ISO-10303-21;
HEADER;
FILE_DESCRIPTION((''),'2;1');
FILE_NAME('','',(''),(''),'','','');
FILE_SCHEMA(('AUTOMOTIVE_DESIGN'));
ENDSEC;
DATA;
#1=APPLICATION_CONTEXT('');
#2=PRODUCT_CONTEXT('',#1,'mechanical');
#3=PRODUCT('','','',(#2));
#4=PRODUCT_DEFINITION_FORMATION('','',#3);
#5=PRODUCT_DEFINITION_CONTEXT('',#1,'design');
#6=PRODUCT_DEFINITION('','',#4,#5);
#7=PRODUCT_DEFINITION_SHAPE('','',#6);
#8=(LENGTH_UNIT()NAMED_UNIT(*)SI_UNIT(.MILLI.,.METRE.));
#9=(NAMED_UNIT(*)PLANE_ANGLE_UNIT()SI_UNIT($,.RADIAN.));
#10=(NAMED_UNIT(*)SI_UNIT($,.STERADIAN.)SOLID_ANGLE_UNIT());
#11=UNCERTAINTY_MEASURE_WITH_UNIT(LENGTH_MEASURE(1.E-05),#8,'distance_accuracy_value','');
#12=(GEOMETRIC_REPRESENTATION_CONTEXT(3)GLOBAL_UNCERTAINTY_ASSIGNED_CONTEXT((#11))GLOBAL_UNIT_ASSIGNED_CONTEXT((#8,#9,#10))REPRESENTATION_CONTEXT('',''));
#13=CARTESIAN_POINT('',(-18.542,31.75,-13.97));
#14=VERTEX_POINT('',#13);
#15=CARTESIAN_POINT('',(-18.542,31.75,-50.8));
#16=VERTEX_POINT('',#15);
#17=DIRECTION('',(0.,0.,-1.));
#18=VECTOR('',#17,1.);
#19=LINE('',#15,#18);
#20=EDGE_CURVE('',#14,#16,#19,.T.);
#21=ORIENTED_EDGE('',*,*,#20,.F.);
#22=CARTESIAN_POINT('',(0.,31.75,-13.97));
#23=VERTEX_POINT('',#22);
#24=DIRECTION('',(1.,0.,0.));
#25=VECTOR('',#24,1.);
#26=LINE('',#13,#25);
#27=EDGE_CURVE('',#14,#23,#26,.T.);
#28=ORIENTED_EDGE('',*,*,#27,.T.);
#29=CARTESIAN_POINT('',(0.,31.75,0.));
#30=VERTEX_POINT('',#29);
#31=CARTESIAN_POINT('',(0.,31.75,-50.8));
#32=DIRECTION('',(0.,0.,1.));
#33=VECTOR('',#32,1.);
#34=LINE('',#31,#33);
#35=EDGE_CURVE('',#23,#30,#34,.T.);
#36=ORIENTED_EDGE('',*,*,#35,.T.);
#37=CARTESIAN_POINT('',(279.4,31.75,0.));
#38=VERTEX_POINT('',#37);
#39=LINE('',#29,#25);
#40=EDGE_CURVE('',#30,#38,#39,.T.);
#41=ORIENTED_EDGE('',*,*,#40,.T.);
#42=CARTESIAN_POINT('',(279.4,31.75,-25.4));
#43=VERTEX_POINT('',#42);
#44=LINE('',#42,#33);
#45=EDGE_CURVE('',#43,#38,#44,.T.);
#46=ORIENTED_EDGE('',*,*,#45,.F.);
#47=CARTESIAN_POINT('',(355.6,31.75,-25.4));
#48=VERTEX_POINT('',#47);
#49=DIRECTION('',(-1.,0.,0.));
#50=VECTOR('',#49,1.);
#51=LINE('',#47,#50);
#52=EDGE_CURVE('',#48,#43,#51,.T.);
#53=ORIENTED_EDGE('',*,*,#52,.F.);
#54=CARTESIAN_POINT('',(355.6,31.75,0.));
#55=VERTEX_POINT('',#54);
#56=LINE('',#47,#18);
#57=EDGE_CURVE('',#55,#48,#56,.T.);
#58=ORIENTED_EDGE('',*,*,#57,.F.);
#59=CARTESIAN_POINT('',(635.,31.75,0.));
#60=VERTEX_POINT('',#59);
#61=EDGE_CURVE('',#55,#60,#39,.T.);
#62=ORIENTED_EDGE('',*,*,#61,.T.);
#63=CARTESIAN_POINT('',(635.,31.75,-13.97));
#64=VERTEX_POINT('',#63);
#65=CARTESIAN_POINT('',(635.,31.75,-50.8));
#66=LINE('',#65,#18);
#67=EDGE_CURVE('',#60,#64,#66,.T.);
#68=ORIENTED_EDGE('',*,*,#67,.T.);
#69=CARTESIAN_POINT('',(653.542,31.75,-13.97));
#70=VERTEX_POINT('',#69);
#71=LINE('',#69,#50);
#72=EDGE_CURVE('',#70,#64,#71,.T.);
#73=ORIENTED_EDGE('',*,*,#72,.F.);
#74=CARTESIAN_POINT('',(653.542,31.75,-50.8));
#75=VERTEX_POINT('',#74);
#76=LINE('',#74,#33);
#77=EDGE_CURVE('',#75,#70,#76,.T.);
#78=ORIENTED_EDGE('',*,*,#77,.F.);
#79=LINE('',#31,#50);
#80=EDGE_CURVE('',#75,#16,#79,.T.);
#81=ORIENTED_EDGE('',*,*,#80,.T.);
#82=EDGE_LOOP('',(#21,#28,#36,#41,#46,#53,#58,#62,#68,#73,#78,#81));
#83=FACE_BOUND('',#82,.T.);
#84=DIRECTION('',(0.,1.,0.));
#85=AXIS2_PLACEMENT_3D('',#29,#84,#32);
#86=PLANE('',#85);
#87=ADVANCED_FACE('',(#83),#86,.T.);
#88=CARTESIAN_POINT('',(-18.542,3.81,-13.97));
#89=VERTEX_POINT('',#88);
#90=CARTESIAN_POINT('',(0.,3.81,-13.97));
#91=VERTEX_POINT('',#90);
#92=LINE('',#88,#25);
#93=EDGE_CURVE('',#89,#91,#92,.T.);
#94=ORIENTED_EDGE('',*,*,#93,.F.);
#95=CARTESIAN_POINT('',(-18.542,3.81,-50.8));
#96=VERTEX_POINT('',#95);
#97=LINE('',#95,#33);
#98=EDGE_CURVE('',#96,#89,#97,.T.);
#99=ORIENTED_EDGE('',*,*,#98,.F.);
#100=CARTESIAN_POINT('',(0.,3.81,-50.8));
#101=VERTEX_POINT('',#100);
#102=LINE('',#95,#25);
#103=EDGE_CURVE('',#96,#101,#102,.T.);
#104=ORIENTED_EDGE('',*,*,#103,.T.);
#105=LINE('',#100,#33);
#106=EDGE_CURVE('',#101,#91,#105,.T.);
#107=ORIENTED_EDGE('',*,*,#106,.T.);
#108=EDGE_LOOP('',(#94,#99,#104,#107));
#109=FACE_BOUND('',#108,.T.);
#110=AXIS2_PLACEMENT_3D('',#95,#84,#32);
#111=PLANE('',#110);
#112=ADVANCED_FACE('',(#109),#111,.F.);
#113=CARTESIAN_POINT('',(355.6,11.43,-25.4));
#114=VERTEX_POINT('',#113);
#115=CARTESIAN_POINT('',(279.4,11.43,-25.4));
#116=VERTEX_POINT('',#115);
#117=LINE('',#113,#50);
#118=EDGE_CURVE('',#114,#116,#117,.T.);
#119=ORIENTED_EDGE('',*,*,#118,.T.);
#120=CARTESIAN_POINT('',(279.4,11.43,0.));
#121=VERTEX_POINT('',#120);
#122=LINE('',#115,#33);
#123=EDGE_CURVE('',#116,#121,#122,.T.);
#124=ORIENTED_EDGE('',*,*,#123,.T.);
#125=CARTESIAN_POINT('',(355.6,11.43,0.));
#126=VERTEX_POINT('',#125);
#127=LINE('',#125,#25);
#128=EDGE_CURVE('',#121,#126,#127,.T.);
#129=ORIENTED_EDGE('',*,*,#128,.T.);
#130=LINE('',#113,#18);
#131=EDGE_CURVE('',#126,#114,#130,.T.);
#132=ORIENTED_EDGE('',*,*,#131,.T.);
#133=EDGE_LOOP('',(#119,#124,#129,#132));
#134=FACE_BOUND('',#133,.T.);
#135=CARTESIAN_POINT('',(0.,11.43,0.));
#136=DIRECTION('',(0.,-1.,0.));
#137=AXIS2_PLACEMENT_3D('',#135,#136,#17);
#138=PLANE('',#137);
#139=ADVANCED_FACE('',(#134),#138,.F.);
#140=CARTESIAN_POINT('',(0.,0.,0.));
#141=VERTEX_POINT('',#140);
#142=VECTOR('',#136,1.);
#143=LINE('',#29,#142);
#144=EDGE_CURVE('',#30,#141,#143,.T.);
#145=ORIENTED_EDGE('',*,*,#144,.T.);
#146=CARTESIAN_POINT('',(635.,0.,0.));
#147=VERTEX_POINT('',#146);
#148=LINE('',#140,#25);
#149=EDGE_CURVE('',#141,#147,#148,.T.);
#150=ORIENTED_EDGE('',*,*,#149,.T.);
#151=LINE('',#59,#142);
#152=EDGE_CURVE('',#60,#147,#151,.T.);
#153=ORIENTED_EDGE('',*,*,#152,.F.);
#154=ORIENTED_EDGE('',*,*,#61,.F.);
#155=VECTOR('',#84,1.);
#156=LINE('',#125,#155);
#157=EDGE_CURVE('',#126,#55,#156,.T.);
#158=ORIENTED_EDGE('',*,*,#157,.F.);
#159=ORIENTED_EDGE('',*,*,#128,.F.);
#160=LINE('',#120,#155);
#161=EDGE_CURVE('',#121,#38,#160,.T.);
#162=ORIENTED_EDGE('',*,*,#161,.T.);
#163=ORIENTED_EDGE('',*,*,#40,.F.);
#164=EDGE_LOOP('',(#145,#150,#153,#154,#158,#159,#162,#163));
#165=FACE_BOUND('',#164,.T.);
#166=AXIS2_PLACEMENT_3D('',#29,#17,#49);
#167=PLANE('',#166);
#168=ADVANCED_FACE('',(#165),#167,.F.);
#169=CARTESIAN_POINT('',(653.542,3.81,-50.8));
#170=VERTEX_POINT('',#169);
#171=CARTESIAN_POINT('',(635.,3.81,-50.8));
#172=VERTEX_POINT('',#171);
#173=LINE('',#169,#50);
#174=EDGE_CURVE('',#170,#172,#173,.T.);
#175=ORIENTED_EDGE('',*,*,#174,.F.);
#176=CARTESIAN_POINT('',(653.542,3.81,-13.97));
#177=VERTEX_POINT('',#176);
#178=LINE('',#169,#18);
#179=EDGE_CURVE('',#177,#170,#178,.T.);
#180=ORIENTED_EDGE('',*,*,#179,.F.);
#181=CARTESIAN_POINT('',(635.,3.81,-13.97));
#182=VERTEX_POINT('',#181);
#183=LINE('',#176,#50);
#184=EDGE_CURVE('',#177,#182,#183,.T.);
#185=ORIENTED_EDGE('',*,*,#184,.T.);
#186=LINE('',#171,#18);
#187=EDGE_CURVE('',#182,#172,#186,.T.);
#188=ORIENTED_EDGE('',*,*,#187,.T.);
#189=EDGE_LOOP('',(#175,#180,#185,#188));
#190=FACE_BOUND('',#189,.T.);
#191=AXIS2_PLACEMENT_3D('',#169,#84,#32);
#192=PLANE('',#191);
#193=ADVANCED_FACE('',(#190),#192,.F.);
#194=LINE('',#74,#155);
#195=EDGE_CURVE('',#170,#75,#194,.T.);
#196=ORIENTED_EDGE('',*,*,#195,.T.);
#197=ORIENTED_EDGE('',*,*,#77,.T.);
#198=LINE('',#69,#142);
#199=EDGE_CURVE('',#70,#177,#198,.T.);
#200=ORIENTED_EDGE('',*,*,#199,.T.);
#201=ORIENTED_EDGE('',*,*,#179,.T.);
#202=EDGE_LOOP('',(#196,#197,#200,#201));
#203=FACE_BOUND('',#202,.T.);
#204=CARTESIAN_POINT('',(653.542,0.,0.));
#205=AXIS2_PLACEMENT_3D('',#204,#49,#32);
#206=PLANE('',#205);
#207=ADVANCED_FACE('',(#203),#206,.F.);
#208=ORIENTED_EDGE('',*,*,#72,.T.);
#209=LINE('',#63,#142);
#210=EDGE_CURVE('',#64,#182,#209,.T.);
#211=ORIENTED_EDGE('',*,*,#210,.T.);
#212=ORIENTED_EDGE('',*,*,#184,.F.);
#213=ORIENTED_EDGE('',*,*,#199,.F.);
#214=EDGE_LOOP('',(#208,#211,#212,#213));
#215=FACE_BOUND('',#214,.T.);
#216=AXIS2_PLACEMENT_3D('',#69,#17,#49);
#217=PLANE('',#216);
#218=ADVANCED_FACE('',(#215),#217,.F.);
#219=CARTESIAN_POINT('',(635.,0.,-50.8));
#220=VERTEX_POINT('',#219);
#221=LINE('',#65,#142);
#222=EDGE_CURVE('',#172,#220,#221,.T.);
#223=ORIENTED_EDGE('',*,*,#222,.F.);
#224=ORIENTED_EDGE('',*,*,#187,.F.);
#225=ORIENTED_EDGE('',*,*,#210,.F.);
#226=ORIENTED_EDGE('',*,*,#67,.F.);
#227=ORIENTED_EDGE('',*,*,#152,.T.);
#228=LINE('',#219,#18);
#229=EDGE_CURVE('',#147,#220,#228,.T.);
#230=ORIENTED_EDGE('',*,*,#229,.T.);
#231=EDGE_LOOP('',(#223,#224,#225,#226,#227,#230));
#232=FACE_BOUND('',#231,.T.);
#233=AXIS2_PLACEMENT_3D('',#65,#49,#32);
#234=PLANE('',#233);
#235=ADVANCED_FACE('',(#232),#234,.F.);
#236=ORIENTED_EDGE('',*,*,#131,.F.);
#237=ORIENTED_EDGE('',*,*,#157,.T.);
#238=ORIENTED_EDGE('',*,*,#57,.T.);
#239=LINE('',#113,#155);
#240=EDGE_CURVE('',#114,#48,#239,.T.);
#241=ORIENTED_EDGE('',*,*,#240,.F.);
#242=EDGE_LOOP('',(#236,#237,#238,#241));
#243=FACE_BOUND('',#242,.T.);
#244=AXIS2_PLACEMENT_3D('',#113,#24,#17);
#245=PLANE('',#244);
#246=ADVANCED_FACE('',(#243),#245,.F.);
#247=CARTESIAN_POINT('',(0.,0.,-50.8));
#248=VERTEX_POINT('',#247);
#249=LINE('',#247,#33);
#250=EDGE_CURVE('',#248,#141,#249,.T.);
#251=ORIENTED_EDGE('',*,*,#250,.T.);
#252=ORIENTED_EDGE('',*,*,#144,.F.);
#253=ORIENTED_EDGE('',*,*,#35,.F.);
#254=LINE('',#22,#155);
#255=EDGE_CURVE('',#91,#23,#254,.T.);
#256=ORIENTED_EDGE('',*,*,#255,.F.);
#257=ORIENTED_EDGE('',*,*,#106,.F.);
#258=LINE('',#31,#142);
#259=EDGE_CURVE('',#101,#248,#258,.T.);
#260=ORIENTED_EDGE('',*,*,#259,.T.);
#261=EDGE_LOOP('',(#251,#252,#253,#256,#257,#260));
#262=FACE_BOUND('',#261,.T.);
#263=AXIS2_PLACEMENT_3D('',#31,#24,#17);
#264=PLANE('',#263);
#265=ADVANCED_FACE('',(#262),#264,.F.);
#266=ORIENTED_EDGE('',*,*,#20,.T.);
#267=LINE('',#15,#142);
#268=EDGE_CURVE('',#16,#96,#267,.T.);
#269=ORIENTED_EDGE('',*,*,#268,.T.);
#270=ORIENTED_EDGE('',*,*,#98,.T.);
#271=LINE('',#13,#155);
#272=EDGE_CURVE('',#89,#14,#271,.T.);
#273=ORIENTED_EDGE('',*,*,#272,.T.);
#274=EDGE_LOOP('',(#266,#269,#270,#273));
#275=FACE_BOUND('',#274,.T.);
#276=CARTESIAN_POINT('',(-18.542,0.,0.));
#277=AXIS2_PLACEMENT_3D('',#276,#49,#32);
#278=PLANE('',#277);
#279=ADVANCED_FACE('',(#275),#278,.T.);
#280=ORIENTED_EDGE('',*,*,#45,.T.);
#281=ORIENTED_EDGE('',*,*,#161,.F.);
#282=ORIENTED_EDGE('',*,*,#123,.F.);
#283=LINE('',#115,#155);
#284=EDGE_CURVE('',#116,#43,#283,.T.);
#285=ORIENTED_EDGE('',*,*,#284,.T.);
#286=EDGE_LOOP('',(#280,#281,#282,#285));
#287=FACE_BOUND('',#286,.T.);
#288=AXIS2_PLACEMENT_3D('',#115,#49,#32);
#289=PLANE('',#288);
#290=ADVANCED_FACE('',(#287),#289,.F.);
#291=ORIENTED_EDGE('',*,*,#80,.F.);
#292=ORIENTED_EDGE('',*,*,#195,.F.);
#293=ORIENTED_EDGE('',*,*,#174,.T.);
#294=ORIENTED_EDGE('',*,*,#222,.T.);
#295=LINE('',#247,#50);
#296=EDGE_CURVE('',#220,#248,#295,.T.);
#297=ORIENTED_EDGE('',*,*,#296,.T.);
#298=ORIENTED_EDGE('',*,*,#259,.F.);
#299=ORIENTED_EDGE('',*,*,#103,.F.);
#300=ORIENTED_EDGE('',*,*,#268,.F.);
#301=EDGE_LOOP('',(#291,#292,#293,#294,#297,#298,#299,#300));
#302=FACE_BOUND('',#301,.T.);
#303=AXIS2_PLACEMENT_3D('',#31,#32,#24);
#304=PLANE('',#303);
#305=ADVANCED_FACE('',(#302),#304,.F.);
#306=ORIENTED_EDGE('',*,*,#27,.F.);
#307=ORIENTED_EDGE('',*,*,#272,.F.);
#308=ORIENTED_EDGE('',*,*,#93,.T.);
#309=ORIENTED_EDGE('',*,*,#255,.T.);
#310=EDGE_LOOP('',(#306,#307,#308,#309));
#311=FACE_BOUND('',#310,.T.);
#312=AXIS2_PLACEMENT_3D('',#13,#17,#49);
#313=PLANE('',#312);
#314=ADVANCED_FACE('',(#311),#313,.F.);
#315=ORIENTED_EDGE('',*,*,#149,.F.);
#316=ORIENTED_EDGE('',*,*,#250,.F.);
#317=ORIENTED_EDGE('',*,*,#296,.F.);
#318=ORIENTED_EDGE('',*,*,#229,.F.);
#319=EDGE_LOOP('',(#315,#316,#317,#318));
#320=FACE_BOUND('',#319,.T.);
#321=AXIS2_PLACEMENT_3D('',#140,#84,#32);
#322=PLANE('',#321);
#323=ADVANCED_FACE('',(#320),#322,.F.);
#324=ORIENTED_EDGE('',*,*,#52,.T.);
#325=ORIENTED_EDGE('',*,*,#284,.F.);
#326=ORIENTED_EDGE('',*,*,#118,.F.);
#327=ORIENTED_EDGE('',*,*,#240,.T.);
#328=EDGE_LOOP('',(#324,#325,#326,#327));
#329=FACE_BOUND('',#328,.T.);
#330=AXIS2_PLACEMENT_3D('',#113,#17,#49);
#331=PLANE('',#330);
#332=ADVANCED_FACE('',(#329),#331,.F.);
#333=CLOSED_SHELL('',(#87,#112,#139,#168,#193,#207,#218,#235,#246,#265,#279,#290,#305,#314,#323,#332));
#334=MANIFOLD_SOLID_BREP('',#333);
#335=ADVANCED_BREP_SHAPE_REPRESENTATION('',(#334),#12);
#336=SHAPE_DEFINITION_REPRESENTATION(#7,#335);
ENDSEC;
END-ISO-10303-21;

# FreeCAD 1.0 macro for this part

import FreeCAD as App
import Part
import Sketcher
Q = App.Units.Quantity

doc = App.newDocument("Part")
body = doc.addObject("PartDesign::Body", "Body")

# Sketch on XZ plane
sketch1 = body.newObject("Sketcher::SketchObject", "Sketch")
sketch1.AttachmentSupport = (doc.getObject("XZ_Plane"), [""])
sketch1.MapMode = "FlatFace"
sketch1.addGeometry(Part.LineSegment(App.Vector(0, -50.8, 0), App.Vector(0, 0, 0)), False)
sketch1.addGeometry(Part.LineSegment(App.Vector(0, 0, 0), App.Vector(635, 0, 0)), False)
sketch1.addGeometry(Part.LineSegment(App.Vector(635, 0, 0), App.Vector(635, -50.8, 0)), False)
sketch1.addGeometry(Part.LineSegment(App.Vector(635, -50.8, 0), App.Vector(0, -50.8, 0)), False)
sketch1.addConstraint(Sketcher.Constraint("Coincident", 0, 2, 1, 1))
sketch1.addConstraint(Sketcher.Constraint("Coincident", 1, 2, 2, 1))
sketch1.addConstraint(Sketcher.Constraint("Coincident", 2, 2, 3, 1))
sketch1.addConstraint(Sketcher.Constraint("Coincident", 3, 2, 0, 1))
sketch1.addConstraint(Sketcher.Constraint("Vertical", 0))
sketch1.addConstraint(Sketcher.Constraint("Horizontal", 1))
sketch1.addConstraint(Sketcher.Constraint("Vertical", 2))
sketch1.addConstraint(Sketcher.Constraint("Horizontal", 3))
sketch1.addConstraint(Sketcher.Constraint("Coincident", 0, 2, -1, 1))
sketch1.addConstraint(Sketcher.Constraint("DistanceX", 1, 1, 1, 2, Q("25 in")))
sketch1.addConstraint(Sketcher.Constraint("DistanceY", 0, 1, 0, 2, Q("2 in")))
pad1 = body.newObject("PartDesign::Pad", "Pad")
pad1.Profile = sketch1
pad1.Length = Q("1.25 in")
pad1.Reversed = True

# Sketch on YZ plane
sketch2 = body.newObject("Sketcher::SketchObject", "Sketch001")
sketch2.AttachmentSupport = (doc.getObject("YZ_Plane"), [""])
sketch2.MapMode = "FlatFace"
sketch2.AttachmentOffset = App.Placement(App.Vector(0, 0, 25 * 25.4), App.Rotation())
sketch2.addGeometry(Part.LineSegment(App.Vector(31.75, -13.97, 0), App.Vector(3.81, -13.97, 0)), False)
sketch2.addGeometry(Part.LineSegment(App.Vector(3.81, -13.97, 0), App.Vector(3.81, -50.8, 0)), False)
sketch2.addGeometry(Part.LineSegment(App.Vector(3.81, -50.8, 0), App.Vector(31.75, -50.8, 0)), False)
sketch2.addGeometry(Part.LineSegment(App.Vector(31.75, -50.8, 0), App.Vector(31.75, -13.97, 0)), False)
sketch2.addConstraint(Sketcher.Constraint("Coincident", 0, 2, 1, 1))
sketch2.addConstraint(Sketcher.Constraint("Coincident", 1, 2, 2, 1))
sketch2.addConstraint(Sketcher.Constraint("Coincident", 2, 2, 3, 1))
sketch2.addConstraint(Sketcher.Constraint("Coincident", 3, 2, 0, 1))
sketch2.addConstraint(Sketcher.Constraint("Horizontal", 0))
sketch2.addConstraint(Sketcher.Constraint("Vertical", 1))
sketch2.addConstraint(Sketcher.Constraint("Horizontal", 2))
sketch2.addConstraint(Sketcher.Constraint("Vertical", 3))
sketch2.addConstraint(Sketcher.Constraint("DistanceX", 0, 2, 0, 1, Q("1.1 in")))
sketch2.addConstraint(Sketcher.Constraint("DistanceY", 1, 2, -1, 1, Q("2 in")))
sketch2.addConstraint(Sketcher.Constraint("DistanceY", 1, 2, 1, 1, Q("1.45 in")))
sketch2.addConstraint(Sketcher.Constraint("DistanceX", -1, 1, 0, 2, Q("0.15 in")))
pad2 = body.newObject("PartDesign::Pad", "Pad001")
pad2.Profile = sketch2
pad2.Length = Q("0.73 in")

# Sketch on YZ plane
sketch3 = body.newObject("Sketcher::SketchObject", "Sketch002")
sketch3.AttachmentSupport = (doc.getObject("YZ_Plane"), [""])
sketch3.MapMode = "FlatFace"
sketch3.addGeometry(Part.LineSegment(App.Vector(31.75, -50.8, 0), App.Vector(3.81, -50.8, 0)), False)
sketch3.addGeometry(Part.LineSegment(App.Vector(3.81, -50.8, 0), App.Vector(3.81, -13.97, 0)), False)
sketch3.addGeometry(Part.LineSegment(App.Vector(3.81, -13.97, 0), App.Vector(31.75, -13.97, 0)), False)
sketch3.addGeometry(Part.LineSegment(App.Vector(31.75, -13.97, 0), App.Vector(31.75, -50.8, 0)), False)
sketch3.addConstraint(Sketcher.Constraint("Coincident", 0, 2, 1, 1))
sketch3.addConstraint(Sketcher.Constraint("Coincident", 1, 2, 2, 1))
sketch3.addConstraint(Sketcher.Constraint("Coincident", 2, 2, 3, 1))
sketch3.addConstraint(Sketcher.Constraint("Coincident", 3, 2, 0, 1))
sketch3.addConstraint(Sketcher.Constraint("Horizontal", 0))
sketch3.addConstraint(Sketcher.Constraint("Vertical", 1))
sketch3.addConstraint(Sketcher.Constraint("Horizontal", 2))
sketch3.addConstraint(Sketcher.Constraint("Vertical", 3))
sketch3.addConstraint(Sketcher.Constraint("DistanceX", 0, 2, 0, 1, Q("1.1 in")))
sketch3.addConstraint(Sketcher.Constraint("DistanceY", 0, 2, -1, 1, Q("2 in")))
sketch3.addConstraint(Sketcher.Constraint("DistanceY", 1, 1, 1, 2, Q("1.45 in")))
sketch3.addConstraint(Sketcher.Constraint("DistanceX", -1, 1, 0, 2, Q("0.15 in")))
pad3 = body.newObject("PartDesign::Pad", "Pad002")
pad3.Profile = sketch3
pad3.Length = Q("0.73 in")
pad3.Reversed = True

# Sketch on XZ plane
sketch4 = body.newObject("Sketcher::SketchObject", "Sketch003")
sketch4.AttachmentSupport = (doc.getObject("XZ_Plane"), [""])
sketch4.MapMode = "FlatFace"
sketch4.AttachmentOffset = App.Placement(App.Vector(0, 0, -1.25 * 25.4), App.Rotation())
sketch4.addGeometry(Part.LineSegment(App.Vector(279.4, -25.4, 0), App.Vector(279.4, 0, 0)), False)
sketch4.addGeometry(Part.LineSegment(App.Vector(279.4, 0, 0), App.Vector(355.6, 0, 0)), False)
sketch4.addGeometry(Part.LineSegment(App.Vector(355.6, 0, 0), App.Vector(355.6, -25.4, 0)), False)
sketch4.addGeometry(Part.LineSegment(App.Vector(355.6, -25.4, 0), App.Vector(279.4, -25.4, 0)), False)
sketch4.addConstraint(Sketcher.Constraint("Coincident", 0, 2, 1, 1))
sketch4.addConstraint(Sketcher.Constraint("Coincident", 1, 2, 2, 1))
sketch4.addConstraint(Sketcher.Constraint("Coincident", 2, 2, 3, 1))
sketch4.addConstraint(Sketcher.Constraint("Coincident", 3, 2, 0, 1))
sketch4.addConstraint(Sketcher.Constraint("Vertical", 0))
sketch4.addConstraint(Sketcher.Constraint("Horizontal", 1))
sketch4.addConstraint(Sketcher.Constraint("Vertical", 2))
sketch4.addConstraint(Sketcher.Constraint("Horizontal", 3))
sketch4.addConstraint(Sketcher.Constraint("PointOnObject", 0, 2, -1))
sketch4.addConstraint(Sketcher.Constraint("DistanceX", 1, 1, 1, 2, Q("3 in")))
sketch4.addConstraint(Sketcher.Constraint("DistanceY", 0, 1, 0, 2, Q("1 in")))
sketch4.addConstraint(Sketcher.Constraint("DistanceX", -1, 1, 0, 2, Q("11 in")))
pocket1 = body.newObject("PartDesign::Pocket", "Pocket")
pocket1.Profile = sketch4
pocket1.Length = Q("0.8 in")
pocket1.Reversed = True

doc.recompute()
